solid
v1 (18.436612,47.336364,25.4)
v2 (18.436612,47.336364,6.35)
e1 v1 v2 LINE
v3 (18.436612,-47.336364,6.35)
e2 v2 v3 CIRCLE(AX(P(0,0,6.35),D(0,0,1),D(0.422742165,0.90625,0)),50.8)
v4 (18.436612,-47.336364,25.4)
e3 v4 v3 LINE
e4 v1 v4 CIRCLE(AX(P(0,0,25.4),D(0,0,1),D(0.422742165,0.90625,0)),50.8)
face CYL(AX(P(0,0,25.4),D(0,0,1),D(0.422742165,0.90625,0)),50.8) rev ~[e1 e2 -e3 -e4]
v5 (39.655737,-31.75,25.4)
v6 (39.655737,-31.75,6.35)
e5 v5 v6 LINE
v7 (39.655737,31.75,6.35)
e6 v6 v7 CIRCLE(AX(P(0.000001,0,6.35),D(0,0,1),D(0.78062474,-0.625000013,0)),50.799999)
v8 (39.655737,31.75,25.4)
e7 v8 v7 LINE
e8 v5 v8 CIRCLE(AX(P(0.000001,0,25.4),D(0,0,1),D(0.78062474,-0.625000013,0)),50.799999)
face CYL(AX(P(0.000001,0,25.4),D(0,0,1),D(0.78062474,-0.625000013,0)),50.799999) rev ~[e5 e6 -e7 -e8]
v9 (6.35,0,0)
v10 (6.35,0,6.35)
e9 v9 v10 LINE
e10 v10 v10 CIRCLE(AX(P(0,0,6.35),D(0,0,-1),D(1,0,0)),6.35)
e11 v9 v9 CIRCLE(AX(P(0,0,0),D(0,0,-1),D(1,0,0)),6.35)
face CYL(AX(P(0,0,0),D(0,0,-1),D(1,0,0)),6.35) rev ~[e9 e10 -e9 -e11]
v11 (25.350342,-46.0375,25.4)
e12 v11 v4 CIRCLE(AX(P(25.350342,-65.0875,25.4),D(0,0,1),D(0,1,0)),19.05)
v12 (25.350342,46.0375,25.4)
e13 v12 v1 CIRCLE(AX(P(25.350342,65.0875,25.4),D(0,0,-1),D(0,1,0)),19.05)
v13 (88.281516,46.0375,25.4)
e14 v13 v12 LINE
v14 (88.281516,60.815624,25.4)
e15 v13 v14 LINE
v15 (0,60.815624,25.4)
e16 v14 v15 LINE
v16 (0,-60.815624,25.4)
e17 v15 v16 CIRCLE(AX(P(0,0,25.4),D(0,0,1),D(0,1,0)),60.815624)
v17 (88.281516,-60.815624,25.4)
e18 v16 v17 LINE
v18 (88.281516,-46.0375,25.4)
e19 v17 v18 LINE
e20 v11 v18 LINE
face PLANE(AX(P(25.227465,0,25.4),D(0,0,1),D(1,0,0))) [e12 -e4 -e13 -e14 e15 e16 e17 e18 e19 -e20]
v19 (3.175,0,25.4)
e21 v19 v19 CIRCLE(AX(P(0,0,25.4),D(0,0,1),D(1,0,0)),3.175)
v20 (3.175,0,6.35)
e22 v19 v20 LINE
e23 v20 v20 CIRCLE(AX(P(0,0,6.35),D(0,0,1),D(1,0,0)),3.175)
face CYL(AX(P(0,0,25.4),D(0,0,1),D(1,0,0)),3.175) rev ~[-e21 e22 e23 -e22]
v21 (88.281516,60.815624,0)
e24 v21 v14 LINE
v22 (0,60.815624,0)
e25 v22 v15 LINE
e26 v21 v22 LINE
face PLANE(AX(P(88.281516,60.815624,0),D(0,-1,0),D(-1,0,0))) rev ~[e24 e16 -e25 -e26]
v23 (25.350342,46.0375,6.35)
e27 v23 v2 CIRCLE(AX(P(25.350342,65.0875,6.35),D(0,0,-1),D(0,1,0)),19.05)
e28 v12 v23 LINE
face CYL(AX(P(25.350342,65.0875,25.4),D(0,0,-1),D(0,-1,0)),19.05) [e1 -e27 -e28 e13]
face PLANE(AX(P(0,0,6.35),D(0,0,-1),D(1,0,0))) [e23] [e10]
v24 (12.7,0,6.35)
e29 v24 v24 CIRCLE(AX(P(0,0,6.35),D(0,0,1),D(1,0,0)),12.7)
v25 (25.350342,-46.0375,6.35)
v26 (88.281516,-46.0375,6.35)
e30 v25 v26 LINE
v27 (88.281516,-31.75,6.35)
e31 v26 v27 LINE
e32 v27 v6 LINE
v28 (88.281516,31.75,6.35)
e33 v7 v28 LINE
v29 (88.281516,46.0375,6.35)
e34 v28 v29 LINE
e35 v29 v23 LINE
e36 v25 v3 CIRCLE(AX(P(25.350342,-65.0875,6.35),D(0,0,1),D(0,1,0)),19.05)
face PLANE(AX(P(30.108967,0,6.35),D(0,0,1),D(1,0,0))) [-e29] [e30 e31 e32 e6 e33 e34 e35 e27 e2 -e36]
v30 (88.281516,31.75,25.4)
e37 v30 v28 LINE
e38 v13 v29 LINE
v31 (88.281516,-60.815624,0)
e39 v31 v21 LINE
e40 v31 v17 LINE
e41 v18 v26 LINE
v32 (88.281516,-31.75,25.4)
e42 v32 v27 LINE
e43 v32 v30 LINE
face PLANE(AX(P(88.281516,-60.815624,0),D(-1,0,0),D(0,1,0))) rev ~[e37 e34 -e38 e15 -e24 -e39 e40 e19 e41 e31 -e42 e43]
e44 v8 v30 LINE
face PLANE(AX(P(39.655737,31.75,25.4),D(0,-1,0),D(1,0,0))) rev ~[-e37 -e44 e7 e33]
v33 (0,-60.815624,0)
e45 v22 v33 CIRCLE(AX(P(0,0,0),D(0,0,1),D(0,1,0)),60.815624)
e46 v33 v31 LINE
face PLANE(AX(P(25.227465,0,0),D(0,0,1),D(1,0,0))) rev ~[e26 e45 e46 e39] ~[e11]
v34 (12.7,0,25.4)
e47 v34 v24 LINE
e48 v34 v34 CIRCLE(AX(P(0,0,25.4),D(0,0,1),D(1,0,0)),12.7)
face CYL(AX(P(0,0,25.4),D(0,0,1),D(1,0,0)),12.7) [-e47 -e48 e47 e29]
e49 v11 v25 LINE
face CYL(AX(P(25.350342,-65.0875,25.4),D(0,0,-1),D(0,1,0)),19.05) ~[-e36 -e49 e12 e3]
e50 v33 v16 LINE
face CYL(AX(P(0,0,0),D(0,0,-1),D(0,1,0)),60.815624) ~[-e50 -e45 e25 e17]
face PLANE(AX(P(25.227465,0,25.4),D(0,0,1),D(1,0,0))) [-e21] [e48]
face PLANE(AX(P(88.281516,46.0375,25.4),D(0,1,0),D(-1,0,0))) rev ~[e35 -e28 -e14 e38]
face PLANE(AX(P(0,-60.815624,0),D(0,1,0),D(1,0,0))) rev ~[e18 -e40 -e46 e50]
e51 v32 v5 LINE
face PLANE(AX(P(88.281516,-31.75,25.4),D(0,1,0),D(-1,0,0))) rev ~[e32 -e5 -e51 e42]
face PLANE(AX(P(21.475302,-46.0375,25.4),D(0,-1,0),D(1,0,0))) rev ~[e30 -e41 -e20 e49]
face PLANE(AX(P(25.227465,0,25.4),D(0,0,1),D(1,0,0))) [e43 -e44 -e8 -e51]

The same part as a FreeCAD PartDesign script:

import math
import FreeCAD as App
import Part
import Sketcher
from FreeCAD import Vector
Q = App.Units.Quantity


def edges_at(feature, points):
    """Names of the edges that pass closest to the given points."""
    edges = feature.Shape.Edges
    near = lambda p: min(range(len(edges)), key=lambda i: edges[i].distToShape(Part.Vertex(*p))[0])
    return sorted({f"Edge{near(p) + 1}" for p in points})

doc = App.newDocument("Part")
params = doc.addObject("Spreadsheet::Sheet", "Params")
for row, (alias, value) in enumerate([
    ("pad1_length", "1 in"),
    ("sketch2_diameter", "1 in"),
    ("sketch2_radius", "2 in"),
    ("sketch2_height", "0.5625 in"),
    ("pocket1_length", "0.75 in"),
    ("fillet_radius", "0.75 in"),
    ("sketch3_diameter", "0.25 in"),
    ("pocket2_length", "1 in"),
    ("sketch4_diameter", "0.5 in"),
    ("pocket3_length", "0.25 in"),
], start=1):
    params.set(f"A{row}", alias)
    params.set(f"B{row}", "=" + value)
    params.setAlias(f"B{row}", alias)

body = doc.addObject("PartDesign::Body", "Body")

# Sketch on XY plane
sketch1 = body.newObject("Sketcher::SketchObject", "Sketch")
sketch1.AttachmentSupport = (doc.getObject("XY_Plane"), [""])
sketch1.MapMode = "FlatFace"
sketch1.addGeometry(Part.LineSegment(Vector(88.281516, 60.815624, 0), Vector(0, 60.815624, 0)), False)
sketch1.addGeometry(Part.ArcOfCircle(Part.Circle(Vector(0, 0, 0), Vector(0, 0, 1), 60.815624), math.radians(90), math.radians(270)), False)
sketch1.addGeometry(Part.LineSegment(Vector(0, -60.815624, 0), Vector(88.281516, -60.815624, 0)), False)
sketch1.addGeometry(Part.LineSegment(Vector(88.281516, -60.815624, 0), Vector(88.281516, 60.815624, 0)), False)
sketch1.addConstraint(Sketcher.Constraint("Tangent", 0, 2, 1, 1))
sketch1.addConstraint(Sketcher.Constraint("Tangent", 1, 2, 2, 1))
sketch1.addConstraint(Sketcher.Constraint("Coincident", 2, 2, 3, 1))
sketch1.addConstraint(Sketcher.Constraint("Coincident", 3, 2, 0, 1))
sketch1.addConstraint(Sketcher.Constraint("Horizontal", 0))
sketch1.addConstraint(Sketcher.Constraint("Horizontal", 2))
sketch1.addConstraint(Sketcher.Constraint("Vertical", 3))
sketch1.addConstraint(Sketcher.Constraint("Coincident", 1, 3, -1, 1))
sketch1.addConstraint(Sketcher.Constraint("Radius", 1, Q("60.815624 mm")))
sketch1.addConstraint(Sketcher.Constraint("DistanceX", 0, 2, 0, 1, Q("88.281516 mm")))
pad1 = body.newObject("PartDesign::Pad", "Pad")
pad1.Profile = sketch1
pad1.setExpression("Length", "Params.pad1_length")

# Sketch on XY plane
sketch2 = body.newObject("Sketcher::SketchObject", "Sketch001")
sketch2.AttachmentSupport = (doc.getObject("XY_Plane"), [""])
sketch2.MapMode = "FlatFace"
sketch2.AttachmentOffset = App.Placement(Vector(0, 0, 1 * 25.4), App.Rotation())
sketch2.addGeometry(Part.LineSegment(Vector(88.281516, 46.0375, 0), Vector(21.475302, 46.0375, 0)), False)
sketch2.addGeometry(Part.ArcOfCircle(Part.Circle(Vector(0, 0, 0), Vector(0, 0, 1), 50.8), math.radians(64.992167), math.radians(295.007833)), False)
sketch2.addGeometry(Part.LineSegment(Vector(21.475302, -46.0375, 0), Vector(88.281516, -46.0375, 0)), False)
sketch2.addGeometry(Part.LineSegment(Vector(88.281516, -46.0375, 0), Vector(88.281516, -31.75, 0)), False)
sketch2.addGeometry(Part.LineSegment(Vector(88.281516, -31.75, 0), Vector(39.655737, -31.75, 0)), False)
sketch2.addGeometry(Part.ArcOfCircle(Part.Circle(Vector(0.000001, 0, 0), Vector(0, 0, 1), 50.799999), math.radians(-38.682188), math.radians(38.682188)), False)
sketch2.addGeometry(Part.LineSegment(Vector(39.655737, 31.75, 0), Vector(88.281516, 31.75, 0)), False)
sketch2.addGeometry(Part.LineSegment(Vector(88.281516, 31.75, 0), Vector(88.281516, 46.0375, 0)), False)
sketch2.addGeometry(Part.Circle(Vector(0, 0, 0), Vector(0, 0, 1), 12.7), False)
sketch2.addConstraint(Sketcher.Constraint("Coincident", 0, 2, 1, 1))
sketch2.addConstraint(Sketcher.Constraint("Coincident", 1, 2, 2, 1))
sketch2.addConstraint(Sketcher.Constraint("Coincident", 2, 2, 3, 1))
sketch2.addConstraint(Sketcher.Constraint("Coincident", 3, 2, 4, 1))
sketch2.addConstraint(Sketcher.Constraint("Coincident", 4, 2, 5, 1))
sketch2.addConstraint(Sketcher.Constraint("Coincident", 5, 2, 6, 1))
sketch2.addConstraint(Sketcher.Constraint("Coincident", 6, 2, 7, 1))
sketch2.addConstraint(Sketcher.Constraint("Coincident", 7, 2, 0, 1))
sketch2.addConstraint(Sketcher.Constraint("Horizontal", 0))
sketch2.addConstraint(Sketcher.Constraint("Horizontal", 2))
sketch2.addConstraint(Sketcher.Constraint("Vertical", 3))
sketch2.addConstraint(Sketcher.Constraint("Horizontal", 4))
sketch2.addConstraint(Sketcher.Constraint("Horizontal", 6))
sketch2.addConstraint(Sketcher.Constraint("Vertical", 7))
sketch2.addConstraint(Sketcher.Constraint("Coincident", 1, 3, -1, 1))
sketch2.addConstraint(Sketcher.Constraint("Coincident", 5, 3, -1, 1))
sketch2.addConstraint(Sketcher.Constraint("Coincident", 8, 3, -1, 1))
sketch2.addConstraint(Sketcher.Constraint("Equal", 1, 5))
sketch2.addConstraint(Sketcher.Constraint("Symmetric", 3, 2, 6, 2, -1))
sketch2.addConstraint(Sketcher.Constraint("Vertical", 0, 2, 1, 2))
sketch2.addConstraint(Sketcher.Constraint("Diameter", 8, Q("1 in")))
sketch2.addConstraint(Sketcher.Constraint("Radius", 1, Q("2 in")))
sketch2.addConstraint(Sketcher.Constraint("DistanceY", 4, 2, 5, 2, Q("2.5 in")))
sketch2.addConstraint(Sketcher.Constraint("DistanceY", 3, 1, 3, 2, Q("0.5625 in")))
sketch2.addConstraint(Sketcher.Constraint("DistanceX", 4, 2, 4, 1, Q("48.625779 mm")))
sketch2.setExpression("Constraints[20]", "Params.sketch2_diameter")
sketch2.setExpression("Constraints[21]", "Params.sketch2_radius")
sketch2.setExpression("Constraints[23]", "Params.sketch2_height")
pocket1 = body.newObject("PartDesign::Pocket", "Pocket")
pocket1.Profile = sketch2
pocket1.setExpression("Length", "Params.pocket1_length")
doc.recompute()

fillet = body.newObject("PartDesign::Fillet", "Fillet")
fillet.Base = (pocket1, edges_at(pocket1, [(21.475, 46.038, 15.875), (21.475, -46.038, 15.875)]))
fillet.setExpression("Radius", "Params.fillet_radius")

# Sketch on XY plane
sketch3 = body.newObject("Sketcher::SketchObject", "Sketch002")
sketch3.AttachmentSupport = (doc.getObject("XY_Plane"), [""])
sketch3.MapMode = "FlatFace"
sketch3.AttachmentOffset = App.Placement(Vector(0, 0, 1 * 25.4), App.Rotation())
sketch3.addGeometry(Part.Circle(Vector(0, 0, 0), Vector(0, 0, 1), 3.175), False)
sketch3.addConstraint(Sketcher.Constraint("Coincident", 0, 3, -1, 1))
sketch3.addConstraint(Sketcher.Constraint("Diameter", 0, Q("0.25 in")))
sketch3.setExpression("Constraints[1]", "Params.sketch3_diameter")
pocket2 = body.newObject("PartDesign::Pocket", "Pocket001")
pocket2.Profile = sketch3
pocket2.setExpression("Length", "Params.pocket2_length")

# Sketch on XY plane
sketch4 = body.newObject("Sketcher::SketchObject", "Sketch003")
sketch4.AttachmentSupport = (doc.getObject("XY_Plane"), [""])
sketch4.MapMode = "FlatFace"
sketch4.addGeometry(Part.Circle(Vector(0, 0, 0), Vector(0, 0, 1), 6.35), False)
sketch4.addConstraint(Sketcher.Constraint("Coincident", 0, 3, -1, 1))
sketch4.addConstraint(Sketcher.Constraint("Diameter", 0, Q("0.5 in")))
sketch4.setExpression("Constraints[1]", "Params.sketch4_diameter")
pocket3 = body.newObject("PartDesign::Pocket", "Pocket002")
pocket3.Profile = sketch4
pocket3.setExpression("Length", "Params.pocket3_length")
pocket3.Reversed = True

doc.recompute()
